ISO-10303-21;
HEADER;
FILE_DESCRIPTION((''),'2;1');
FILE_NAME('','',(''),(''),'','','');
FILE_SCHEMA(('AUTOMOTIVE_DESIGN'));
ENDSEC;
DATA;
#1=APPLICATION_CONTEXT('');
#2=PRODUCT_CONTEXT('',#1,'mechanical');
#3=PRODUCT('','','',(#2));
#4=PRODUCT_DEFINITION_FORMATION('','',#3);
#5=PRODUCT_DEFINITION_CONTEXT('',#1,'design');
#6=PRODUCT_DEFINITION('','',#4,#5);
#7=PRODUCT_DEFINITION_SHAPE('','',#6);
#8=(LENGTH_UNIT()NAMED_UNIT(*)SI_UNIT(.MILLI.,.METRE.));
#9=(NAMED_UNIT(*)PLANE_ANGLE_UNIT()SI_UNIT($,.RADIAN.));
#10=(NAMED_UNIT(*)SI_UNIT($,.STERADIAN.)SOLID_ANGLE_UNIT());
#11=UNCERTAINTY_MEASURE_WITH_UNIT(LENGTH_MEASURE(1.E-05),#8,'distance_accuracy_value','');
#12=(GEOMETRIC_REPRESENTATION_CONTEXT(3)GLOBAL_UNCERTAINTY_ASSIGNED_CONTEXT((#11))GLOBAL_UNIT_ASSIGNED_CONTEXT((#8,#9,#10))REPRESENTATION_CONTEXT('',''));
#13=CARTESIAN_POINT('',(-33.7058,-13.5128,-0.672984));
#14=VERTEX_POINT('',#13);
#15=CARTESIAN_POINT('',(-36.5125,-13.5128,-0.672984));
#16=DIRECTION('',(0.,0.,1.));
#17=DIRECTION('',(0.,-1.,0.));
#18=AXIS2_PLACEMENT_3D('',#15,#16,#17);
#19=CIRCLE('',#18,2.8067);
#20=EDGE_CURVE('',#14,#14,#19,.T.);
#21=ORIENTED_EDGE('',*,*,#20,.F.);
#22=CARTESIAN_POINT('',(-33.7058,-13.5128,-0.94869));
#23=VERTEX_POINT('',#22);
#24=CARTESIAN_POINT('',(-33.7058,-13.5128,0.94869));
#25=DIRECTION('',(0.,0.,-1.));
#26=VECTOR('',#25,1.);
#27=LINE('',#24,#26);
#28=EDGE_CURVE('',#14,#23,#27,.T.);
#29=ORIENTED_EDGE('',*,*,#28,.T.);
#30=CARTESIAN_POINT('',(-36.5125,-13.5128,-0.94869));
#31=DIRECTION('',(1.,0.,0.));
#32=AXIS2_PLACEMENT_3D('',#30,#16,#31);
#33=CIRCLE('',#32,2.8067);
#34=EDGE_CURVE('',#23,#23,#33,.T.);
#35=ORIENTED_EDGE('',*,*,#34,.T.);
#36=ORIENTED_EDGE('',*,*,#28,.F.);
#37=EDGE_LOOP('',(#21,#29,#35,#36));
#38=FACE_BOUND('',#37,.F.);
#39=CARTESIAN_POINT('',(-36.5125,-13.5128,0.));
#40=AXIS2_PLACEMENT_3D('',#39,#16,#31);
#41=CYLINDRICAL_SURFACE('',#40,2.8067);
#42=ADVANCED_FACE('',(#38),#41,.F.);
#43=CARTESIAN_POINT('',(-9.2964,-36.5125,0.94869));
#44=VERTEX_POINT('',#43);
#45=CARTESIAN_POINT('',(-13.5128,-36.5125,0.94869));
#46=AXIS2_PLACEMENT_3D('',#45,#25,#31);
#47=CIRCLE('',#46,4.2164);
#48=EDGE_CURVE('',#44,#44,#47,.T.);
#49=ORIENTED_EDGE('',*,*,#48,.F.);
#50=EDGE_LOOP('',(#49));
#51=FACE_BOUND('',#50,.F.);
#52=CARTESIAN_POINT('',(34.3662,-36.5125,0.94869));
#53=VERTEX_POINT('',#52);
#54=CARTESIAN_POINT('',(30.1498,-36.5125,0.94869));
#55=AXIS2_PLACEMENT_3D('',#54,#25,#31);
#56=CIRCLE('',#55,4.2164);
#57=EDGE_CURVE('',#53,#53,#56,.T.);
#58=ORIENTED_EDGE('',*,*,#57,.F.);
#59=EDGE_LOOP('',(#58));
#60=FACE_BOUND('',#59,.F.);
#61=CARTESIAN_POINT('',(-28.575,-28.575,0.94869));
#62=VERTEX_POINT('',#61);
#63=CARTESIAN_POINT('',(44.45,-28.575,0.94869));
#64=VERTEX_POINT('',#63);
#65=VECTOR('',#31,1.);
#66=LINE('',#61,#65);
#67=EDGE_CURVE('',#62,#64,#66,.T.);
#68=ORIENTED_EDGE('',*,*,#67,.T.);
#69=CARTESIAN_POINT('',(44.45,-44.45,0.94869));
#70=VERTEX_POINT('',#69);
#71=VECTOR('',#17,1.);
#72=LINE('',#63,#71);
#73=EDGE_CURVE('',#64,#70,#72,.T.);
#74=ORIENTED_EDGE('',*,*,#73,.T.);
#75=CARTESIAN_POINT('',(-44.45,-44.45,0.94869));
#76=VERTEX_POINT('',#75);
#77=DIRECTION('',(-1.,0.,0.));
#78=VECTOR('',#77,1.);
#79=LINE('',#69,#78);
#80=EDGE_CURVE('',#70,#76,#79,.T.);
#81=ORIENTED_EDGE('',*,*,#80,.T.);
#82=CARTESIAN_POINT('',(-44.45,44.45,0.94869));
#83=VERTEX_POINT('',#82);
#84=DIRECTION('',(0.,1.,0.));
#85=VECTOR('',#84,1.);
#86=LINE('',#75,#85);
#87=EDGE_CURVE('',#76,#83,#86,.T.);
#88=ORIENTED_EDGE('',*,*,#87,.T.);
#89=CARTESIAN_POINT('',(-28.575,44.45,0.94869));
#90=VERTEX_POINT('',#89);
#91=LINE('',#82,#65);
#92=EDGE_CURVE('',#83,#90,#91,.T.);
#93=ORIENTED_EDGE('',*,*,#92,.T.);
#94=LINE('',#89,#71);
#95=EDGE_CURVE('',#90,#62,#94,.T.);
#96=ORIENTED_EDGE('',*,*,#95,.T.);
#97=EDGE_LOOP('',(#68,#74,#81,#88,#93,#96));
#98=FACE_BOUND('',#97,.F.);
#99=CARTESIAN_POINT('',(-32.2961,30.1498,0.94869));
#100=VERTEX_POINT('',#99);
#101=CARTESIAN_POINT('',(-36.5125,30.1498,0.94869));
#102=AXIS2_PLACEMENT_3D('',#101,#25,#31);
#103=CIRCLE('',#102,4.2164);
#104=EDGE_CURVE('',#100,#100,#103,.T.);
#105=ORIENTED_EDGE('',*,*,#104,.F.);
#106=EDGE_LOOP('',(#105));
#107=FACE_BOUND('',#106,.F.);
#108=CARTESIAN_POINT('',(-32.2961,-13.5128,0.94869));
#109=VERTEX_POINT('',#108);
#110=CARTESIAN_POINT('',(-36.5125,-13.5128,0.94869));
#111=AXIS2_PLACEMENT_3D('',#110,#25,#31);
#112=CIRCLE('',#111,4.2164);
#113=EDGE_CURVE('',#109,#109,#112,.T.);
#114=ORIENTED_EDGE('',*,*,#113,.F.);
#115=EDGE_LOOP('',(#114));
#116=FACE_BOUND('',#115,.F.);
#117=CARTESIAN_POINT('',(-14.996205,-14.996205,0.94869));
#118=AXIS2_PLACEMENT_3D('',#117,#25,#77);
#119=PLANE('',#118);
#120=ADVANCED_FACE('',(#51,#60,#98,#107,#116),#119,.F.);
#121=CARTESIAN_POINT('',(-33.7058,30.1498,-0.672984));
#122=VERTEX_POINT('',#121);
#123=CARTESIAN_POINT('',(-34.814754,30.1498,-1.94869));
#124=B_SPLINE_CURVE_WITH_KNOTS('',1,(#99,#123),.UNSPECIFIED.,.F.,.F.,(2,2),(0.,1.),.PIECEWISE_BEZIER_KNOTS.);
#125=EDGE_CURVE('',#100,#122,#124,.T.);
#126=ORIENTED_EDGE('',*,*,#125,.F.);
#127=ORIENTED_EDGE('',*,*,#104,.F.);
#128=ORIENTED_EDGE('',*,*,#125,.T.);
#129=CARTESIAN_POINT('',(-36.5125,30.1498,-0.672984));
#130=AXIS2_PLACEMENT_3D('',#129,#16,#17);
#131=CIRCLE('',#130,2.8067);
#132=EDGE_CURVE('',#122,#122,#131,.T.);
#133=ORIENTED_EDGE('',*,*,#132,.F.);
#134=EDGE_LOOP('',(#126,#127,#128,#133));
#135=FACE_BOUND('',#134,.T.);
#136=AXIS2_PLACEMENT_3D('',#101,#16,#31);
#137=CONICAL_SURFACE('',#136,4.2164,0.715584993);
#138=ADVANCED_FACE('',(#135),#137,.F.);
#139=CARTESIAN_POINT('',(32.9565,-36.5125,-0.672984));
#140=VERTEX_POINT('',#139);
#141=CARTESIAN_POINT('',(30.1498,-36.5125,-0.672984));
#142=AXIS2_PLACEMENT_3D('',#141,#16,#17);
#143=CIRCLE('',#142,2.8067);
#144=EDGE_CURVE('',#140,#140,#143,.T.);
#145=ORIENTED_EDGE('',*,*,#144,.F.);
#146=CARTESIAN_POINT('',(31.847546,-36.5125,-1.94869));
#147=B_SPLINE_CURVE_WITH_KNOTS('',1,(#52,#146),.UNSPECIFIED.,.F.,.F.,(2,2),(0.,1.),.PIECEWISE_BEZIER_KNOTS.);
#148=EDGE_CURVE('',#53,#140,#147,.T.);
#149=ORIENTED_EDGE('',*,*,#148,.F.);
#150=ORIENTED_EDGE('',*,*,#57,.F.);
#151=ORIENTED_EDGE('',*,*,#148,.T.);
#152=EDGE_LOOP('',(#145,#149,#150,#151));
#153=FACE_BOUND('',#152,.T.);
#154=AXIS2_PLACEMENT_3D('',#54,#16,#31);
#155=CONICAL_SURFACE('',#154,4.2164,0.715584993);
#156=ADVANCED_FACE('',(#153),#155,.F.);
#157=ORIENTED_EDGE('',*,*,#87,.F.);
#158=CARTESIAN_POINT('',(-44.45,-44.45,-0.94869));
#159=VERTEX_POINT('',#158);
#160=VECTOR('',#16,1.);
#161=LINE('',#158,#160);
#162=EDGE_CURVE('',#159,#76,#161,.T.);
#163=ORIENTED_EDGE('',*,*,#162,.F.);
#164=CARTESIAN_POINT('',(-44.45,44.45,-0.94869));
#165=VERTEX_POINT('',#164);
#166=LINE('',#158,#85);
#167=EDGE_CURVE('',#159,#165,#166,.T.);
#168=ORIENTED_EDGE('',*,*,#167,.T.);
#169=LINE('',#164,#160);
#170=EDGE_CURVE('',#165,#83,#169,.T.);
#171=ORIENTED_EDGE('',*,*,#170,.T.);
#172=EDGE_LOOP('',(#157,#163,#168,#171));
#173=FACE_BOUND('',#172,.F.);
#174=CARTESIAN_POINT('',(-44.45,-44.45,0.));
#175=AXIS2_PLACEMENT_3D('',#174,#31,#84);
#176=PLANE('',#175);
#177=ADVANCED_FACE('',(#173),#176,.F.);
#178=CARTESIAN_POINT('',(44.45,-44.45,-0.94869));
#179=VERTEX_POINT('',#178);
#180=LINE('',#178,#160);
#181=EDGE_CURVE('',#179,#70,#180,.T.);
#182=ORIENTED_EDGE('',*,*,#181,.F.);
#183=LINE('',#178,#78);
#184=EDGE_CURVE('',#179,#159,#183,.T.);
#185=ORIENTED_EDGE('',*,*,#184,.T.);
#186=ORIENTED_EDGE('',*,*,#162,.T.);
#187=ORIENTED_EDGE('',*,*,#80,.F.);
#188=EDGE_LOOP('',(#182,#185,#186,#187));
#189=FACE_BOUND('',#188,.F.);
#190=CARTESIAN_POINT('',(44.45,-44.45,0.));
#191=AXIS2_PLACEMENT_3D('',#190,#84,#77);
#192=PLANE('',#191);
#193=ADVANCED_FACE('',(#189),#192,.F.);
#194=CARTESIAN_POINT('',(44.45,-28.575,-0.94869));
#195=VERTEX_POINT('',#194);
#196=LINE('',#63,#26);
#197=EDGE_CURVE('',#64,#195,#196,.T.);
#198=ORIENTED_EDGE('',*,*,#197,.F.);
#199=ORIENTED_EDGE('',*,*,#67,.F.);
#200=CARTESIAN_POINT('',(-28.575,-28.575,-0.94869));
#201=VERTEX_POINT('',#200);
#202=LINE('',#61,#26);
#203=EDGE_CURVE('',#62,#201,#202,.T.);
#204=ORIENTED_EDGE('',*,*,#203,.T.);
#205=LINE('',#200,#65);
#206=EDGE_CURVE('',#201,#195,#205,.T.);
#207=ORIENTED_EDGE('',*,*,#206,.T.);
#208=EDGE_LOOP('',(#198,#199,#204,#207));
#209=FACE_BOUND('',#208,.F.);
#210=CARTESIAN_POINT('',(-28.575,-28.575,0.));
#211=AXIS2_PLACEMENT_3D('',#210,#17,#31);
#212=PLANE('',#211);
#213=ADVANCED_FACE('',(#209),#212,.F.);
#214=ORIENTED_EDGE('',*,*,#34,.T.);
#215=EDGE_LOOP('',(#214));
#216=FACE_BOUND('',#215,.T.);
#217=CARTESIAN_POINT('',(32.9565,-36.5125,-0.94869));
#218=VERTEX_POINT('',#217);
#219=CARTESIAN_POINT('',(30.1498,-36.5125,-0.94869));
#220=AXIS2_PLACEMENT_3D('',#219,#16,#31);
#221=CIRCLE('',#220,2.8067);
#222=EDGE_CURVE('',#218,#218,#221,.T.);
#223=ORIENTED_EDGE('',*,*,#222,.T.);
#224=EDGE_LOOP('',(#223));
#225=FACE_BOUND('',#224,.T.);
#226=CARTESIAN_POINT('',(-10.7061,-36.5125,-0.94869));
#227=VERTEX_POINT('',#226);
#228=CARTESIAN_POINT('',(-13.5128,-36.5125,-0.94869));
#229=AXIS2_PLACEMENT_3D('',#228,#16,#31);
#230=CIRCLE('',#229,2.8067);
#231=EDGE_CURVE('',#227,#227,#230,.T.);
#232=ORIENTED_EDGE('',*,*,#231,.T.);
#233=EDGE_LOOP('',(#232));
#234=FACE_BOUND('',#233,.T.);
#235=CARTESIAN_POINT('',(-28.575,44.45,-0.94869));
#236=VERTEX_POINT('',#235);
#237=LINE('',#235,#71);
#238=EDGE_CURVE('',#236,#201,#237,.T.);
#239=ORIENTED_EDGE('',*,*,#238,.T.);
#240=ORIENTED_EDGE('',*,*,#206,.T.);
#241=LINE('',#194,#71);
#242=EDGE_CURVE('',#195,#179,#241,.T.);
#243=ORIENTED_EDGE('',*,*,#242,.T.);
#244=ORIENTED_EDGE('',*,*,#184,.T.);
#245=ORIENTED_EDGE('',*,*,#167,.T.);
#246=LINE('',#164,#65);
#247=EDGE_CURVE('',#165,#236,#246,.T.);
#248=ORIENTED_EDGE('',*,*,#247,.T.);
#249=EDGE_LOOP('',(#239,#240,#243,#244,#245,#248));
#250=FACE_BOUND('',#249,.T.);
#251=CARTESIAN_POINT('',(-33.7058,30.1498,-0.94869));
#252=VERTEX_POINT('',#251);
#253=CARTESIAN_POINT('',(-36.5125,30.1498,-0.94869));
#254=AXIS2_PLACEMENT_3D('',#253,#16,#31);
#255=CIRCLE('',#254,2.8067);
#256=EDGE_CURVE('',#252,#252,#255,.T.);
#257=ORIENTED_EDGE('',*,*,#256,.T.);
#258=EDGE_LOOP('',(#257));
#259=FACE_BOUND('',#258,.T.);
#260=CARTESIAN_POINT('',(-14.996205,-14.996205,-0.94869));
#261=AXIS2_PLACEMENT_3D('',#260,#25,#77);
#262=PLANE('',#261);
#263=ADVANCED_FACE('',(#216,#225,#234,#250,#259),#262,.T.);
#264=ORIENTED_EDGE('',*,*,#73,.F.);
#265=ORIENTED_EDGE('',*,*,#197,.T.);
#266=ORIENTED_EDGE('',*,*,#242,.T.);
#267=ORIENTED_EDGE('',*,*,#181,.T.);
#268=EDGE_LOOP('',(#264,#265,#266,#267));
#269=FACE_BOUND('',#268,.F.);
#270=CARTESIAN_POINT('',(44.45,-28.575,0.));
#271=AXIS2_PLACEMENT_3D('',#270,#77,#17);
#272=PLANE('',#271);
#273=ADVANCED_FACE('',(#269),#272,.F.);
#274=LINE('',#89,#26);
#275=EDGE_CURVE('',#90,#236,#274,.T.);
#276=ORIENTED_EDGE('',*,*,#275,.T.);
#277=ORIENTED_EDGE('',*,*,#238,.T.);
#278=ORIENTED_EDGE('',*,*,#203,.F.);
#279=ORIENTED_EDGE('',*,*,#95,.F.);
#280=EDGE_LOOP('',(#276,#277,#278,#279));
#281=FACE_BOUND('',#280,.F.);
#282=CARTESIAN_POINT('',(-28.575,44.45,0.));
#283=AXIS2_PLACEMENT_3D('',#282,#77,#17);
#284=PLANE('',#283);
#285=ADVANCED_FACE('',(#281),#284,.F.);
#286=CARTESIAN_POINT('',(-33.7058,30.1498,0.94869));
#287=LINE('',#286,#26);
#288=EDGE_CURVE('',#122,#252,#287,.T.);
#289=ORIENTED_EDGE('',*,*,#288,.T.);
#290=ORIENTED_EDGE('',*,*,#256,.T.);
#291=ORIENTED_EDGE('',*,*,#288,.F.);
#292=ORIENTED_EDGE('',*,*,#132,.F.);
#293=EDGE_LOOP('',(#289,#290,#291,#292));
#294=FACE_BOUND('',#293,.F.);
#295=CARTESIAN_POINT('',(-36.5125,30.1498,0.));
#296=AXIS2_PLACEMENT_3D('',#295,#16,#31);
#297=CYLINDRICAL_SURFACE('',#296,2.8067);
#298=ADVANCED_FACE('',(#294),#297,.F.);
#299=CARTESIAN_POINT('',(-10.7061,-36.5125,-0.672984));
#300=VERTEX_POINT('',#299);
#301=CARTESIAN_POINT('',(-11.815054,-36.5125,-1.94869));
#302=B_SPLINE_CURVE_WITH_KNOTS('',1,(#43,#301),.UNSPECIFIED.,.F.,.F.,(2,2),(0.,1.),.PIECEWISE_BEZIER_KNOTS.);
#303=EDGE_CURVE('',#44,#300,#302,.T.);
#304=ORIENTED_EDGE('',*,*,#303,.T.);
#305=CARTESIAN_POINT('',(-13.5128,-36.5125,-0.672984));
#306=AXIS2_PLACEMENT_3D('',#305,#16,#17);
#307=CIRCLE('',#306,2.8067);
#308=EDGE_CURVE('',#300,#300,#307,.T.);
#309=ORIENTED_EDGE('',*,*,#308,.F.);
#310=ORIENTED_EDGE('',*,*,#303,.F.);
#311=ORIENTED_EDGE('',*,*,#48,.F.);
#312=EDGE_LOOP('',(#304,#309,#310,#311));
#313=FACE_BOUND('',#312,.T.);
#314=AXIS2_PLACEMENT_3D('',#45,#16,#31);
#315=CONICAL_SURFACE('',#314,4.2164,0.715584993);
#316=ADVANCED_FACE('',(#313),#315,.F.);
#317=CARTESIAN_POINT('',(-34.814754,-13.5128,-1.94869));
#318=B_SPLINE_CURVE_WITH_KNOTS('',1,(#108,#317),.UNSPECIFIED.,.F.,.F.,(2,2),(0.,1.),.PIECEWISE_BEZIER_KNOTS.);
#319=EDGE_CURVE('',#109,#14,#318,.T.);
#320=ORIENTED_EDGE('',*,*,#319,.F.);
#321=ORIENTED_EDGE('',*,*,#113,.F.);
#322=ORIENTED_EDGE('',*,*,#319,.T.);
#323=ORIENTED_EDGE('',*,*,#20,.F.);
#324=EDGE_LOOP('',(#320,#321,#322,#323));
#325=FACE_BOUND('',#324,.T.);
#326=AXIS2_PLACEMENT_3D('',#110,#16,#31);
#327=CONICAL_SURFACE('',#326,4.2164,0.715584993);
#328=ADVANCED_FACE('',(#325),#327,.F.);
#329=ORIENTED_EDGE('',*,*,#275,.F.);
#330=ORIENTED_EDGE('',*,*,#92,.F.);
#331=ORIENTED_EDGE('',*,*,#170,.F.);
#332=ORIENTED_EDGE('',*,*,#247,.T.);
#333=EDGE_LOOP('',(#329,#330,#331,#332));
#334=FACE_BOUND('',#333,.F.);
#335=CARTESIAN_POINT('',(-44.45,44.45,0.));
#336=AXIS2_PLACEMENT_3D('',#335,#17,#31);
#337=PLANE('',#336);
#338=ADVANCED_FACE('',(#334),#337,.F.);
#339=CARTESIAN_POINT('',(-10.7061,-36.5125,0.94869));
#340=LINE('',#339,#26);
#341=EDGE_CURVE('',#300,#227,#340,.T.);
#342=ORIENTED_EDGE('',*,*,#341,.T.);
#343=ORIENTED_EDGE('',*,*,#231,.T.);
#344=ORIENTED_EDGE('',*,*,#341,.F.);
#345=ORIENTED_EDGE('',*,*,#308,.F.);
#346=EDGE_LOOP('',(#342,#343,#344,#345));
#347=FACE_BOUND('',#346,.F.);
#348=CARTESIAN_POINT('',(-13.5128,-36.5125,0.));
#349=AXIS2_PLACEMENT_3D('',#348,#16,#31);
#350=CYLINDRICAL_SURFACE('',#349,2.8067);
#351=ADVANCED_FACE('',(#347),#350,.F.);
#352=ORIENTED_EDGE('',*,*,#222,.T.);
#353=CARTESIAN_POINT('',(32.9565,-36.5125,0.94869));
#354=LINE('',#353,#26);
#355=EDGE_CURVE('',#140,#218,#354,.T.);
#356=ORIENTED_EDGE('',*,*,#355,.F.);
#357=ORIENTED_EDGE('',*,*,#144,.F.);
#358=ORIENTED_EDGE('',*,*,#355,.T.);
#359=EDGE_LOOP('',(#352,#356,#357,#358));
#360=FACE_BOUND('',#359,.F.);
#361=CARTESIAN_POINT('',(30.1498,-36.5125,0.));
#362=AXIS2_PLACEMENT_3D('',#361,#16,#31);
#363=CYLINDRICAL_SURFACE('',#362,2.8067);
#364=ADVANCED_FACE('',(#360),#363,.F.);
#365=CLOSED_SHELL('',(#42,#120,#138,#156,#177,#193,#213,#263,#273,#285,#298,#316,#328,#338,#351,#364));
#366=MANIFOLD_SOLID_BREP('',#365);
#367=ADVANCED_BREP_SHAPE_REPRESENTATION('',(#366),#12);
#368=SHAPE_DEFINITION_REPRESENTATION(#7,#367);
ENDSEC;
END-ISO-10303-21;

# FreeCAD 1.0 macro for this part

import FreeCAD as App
import Part
import Sketcher

V = App.Vector
Q = App.Units.Quantity

doc = App.newDocument("Part")
body = doc.addObject("PartDesign::Body", "Body")

# Sketch on XY plane
sketch1 = doc.addObject("Sketcher::SketchObject", "Sketch")
body.addObject(sketch1)
sketch1.AttachmentSupport = (doc.XY_Plane, [""])
sketch1.MapMode = "FlatFace"
sketch1.addGeometry([
    Part.LineSegment(V(-29, 44, 0), V(-44, 44, 0)),  # 0
    Part.LineSegment(V(-44, 44, 0), V(-44, -44, 0)),  # 1
    Part.LineSegment(V(-44, -44, 0), V(44, -44, 0)),  # 2
    Part.LineSegment(V(44, -44, 0), V(44, -29, 0)),  # 3
    Part.LineSegment(V(44, -29, 0), V(-29, -29, 0)),  # 4
    Part.LineSegment(V(-29, -29, 0), V(-29, 44, 0)),  # 5
], False)
sketch1.addConstraint([
    Sketcher.Constraint("Coincident", 0, 2, 1, 1),
    Sketcher.Constraint("Coincident", 1, 2, 2, 1),
    Sketcher.Constraint("Coincident", 2, 2, 3, 1),
    Sketcher.Constraint("Coincident", 3, 2, 4, 1),
    Sketcher.Constraint("Coincident", 4, 2, 5, 1),
    Sketcher.Constraint("Coincident", 5, 2, 0, 1),
    Sketcher.Constraint("Horizontal", 0),
    Sketcher.Constraint("Vertical", 1),
    Sketcher.Constraint("Horizontal", 2),
    Sketcher.Constraint("Vertical", 3),
    Sketcher.Constraint("Horizontal", 4),
    Sketcher.Constraint("Vertical", 5),
    Sketcher.Constraint("Symmetric", 0, 2, 2, 2, -1, 1),
    Sketcher.Constraint("Equal", 2, 1),
    Sketcher.Constraint("Equal", 0, 3),
    Sketcher.Constraint("DistanceX", 2, 1, 2, 2, Q("3.5 in")),
    Sketcher.Constraint("DistanceX", 0, 2, 0, 1, Q("0.625 in")),
])
pad1 = doc.addObject("PartDesign::Pad", "Pad")
body.addObject(pad1)
pad1.Profile = sketch1
pad1.Type = "TwoLengths"
pad1.Length = 0.94869
pad1.Length2 = 0.94869

# Sketch on XY plane
sketch2 = doc.addObject("Sketcher::SketchObject", "Sketch001")
body.addObject(sketch2)
sketch2.AttachmentSupport = (doc.XY_Plane, [""])
sketch2.MapMode = "FlatFace"
sketch2.addGeometry([
    Part.Circle(V(-36.5, 30.1, 0), V(0, 0, 1), 2.8),
    Part.Circle(V(-36.5, -13.5, 0), V(0, 0, 1), 2.8),
    Part.Circle(V(-13.5, -36.5, 0), V(0, 0, 1), 2.8),
    Part.Circle(V(30.1, -36.5, 0), V(0, 0, 1), 2.8),
], False)
sketch2.addConstraint([
    Sketcher.Constraint("Equal", 0, 1),
    Sketcher.Constraint("Equal", 1, 2),
    Sketcher.Constraint("Equal", 2, 3),
    Sketcher.Constraint("Horizontal", 2, 3, 3, 3),
    Sketcher.Constraint("Vertical", 0, 3, 1, 3),
    Sketcher.Constraint("Diameter", 0, Q("0.221 in")),
    Sketcher.Constraint("DistanceX", 0, 3, -1, 1, Q("1.4375 in")),
    Sketcher.Constraint("DistanceY", -1, 1, 0, 3, Q("1.187 in")),
    Sketcher.Constraint("DistanceY", 1, 3, -1, 1, Q("0.532 in")),
    Sketcher.Constraint("DistanceX", 2, 3, -1, 1, Q("0.532 in")),
    Sketcher.Constraint("DistanceY", 2, 3, -1, 1, Q("1.4375 in")),
    Sketcher.Constraint("DistanceX", -1, 1, 3, 3, Q("1.187 in")),
])
pocket1 = doc.addObject("PartDesign::Pocket", "Pocket")
body.addObject(pocket1)
pocket1.Profile = sketch2
pocket1.Type = "ThroughAll"
pocket1.Midplane = True

# Sketch on XY plane
sketch3 = doc.addObject("Sketcher::SketchObject", "Sketch002")
body.addObject(sketch3)
sketch3.AttachmentSupport = (doc.XY_Plane, [""])
sketch3.MapMode = "FlatFace"
sketch3.AttachmentOffset = App.Placement(V(0, 0, 0.94869), App.Rotation())
sketch3.addGeometry([
    Part.Circle(V(-36.5, 30.1, 0), V(0, 0, 1), 4.2),
    Part.Circle(V(-36.5, -13.5, 0), V(0, 0, 1), 4.2),
    Part.Circle(V(-13.5, -36.5, 0), V(0, 0, 1), 4.2),
    Part.Circle(V(30.1, -36.5, 0), V(0, 0, 1), 4.2),
], False)
sketch3.addConstraint([
    Sketcher.Constraint("Equal", 0, 1),
    Sketcher.Constraint("Equal", 1, 2),
    Sketcher.Constraint("Equal", 2, 3),
    Sketcher.Constraint("Horizontal", 2, 3, 3, 3),
    Sketcher.Constraint("Vertical", 0, 3, 1, 3),
    Sketcher.Constraint("Diameter", 0, Q("0.332 in")),
    Sketcher.Constraint("DistanceX", 0, 3, -1, 1, Q("1.4375 in")),
    Sketcher.Constraint("DistanceY", -1, 1, 0, 3, Q("1.187 in")),
    Sketcher.Constraint("DistanceY", 1, 3, -1, 1, Q("0.532 in")),
    Sketcher.Constraint("DistanceX", 2, 3, -1, 1, Q("0.532 in")),
    Sketcher.Constraint("DistanceY", 2, 3, -1, 1, Q("1.4375 in")),
    Sketcher.Constraint("DistanceX", -1, 1, 3, 3, Q("1.187 in")),
])
pocket2 = doc.addObject("PartDesign::Pocket", "Pocket001")
body.addObject(pocket2)
pocket2.Profile = sketch3
pocket2.Length = 2.89738
pocket2.TaperAngle = -41

doc.recompute()
